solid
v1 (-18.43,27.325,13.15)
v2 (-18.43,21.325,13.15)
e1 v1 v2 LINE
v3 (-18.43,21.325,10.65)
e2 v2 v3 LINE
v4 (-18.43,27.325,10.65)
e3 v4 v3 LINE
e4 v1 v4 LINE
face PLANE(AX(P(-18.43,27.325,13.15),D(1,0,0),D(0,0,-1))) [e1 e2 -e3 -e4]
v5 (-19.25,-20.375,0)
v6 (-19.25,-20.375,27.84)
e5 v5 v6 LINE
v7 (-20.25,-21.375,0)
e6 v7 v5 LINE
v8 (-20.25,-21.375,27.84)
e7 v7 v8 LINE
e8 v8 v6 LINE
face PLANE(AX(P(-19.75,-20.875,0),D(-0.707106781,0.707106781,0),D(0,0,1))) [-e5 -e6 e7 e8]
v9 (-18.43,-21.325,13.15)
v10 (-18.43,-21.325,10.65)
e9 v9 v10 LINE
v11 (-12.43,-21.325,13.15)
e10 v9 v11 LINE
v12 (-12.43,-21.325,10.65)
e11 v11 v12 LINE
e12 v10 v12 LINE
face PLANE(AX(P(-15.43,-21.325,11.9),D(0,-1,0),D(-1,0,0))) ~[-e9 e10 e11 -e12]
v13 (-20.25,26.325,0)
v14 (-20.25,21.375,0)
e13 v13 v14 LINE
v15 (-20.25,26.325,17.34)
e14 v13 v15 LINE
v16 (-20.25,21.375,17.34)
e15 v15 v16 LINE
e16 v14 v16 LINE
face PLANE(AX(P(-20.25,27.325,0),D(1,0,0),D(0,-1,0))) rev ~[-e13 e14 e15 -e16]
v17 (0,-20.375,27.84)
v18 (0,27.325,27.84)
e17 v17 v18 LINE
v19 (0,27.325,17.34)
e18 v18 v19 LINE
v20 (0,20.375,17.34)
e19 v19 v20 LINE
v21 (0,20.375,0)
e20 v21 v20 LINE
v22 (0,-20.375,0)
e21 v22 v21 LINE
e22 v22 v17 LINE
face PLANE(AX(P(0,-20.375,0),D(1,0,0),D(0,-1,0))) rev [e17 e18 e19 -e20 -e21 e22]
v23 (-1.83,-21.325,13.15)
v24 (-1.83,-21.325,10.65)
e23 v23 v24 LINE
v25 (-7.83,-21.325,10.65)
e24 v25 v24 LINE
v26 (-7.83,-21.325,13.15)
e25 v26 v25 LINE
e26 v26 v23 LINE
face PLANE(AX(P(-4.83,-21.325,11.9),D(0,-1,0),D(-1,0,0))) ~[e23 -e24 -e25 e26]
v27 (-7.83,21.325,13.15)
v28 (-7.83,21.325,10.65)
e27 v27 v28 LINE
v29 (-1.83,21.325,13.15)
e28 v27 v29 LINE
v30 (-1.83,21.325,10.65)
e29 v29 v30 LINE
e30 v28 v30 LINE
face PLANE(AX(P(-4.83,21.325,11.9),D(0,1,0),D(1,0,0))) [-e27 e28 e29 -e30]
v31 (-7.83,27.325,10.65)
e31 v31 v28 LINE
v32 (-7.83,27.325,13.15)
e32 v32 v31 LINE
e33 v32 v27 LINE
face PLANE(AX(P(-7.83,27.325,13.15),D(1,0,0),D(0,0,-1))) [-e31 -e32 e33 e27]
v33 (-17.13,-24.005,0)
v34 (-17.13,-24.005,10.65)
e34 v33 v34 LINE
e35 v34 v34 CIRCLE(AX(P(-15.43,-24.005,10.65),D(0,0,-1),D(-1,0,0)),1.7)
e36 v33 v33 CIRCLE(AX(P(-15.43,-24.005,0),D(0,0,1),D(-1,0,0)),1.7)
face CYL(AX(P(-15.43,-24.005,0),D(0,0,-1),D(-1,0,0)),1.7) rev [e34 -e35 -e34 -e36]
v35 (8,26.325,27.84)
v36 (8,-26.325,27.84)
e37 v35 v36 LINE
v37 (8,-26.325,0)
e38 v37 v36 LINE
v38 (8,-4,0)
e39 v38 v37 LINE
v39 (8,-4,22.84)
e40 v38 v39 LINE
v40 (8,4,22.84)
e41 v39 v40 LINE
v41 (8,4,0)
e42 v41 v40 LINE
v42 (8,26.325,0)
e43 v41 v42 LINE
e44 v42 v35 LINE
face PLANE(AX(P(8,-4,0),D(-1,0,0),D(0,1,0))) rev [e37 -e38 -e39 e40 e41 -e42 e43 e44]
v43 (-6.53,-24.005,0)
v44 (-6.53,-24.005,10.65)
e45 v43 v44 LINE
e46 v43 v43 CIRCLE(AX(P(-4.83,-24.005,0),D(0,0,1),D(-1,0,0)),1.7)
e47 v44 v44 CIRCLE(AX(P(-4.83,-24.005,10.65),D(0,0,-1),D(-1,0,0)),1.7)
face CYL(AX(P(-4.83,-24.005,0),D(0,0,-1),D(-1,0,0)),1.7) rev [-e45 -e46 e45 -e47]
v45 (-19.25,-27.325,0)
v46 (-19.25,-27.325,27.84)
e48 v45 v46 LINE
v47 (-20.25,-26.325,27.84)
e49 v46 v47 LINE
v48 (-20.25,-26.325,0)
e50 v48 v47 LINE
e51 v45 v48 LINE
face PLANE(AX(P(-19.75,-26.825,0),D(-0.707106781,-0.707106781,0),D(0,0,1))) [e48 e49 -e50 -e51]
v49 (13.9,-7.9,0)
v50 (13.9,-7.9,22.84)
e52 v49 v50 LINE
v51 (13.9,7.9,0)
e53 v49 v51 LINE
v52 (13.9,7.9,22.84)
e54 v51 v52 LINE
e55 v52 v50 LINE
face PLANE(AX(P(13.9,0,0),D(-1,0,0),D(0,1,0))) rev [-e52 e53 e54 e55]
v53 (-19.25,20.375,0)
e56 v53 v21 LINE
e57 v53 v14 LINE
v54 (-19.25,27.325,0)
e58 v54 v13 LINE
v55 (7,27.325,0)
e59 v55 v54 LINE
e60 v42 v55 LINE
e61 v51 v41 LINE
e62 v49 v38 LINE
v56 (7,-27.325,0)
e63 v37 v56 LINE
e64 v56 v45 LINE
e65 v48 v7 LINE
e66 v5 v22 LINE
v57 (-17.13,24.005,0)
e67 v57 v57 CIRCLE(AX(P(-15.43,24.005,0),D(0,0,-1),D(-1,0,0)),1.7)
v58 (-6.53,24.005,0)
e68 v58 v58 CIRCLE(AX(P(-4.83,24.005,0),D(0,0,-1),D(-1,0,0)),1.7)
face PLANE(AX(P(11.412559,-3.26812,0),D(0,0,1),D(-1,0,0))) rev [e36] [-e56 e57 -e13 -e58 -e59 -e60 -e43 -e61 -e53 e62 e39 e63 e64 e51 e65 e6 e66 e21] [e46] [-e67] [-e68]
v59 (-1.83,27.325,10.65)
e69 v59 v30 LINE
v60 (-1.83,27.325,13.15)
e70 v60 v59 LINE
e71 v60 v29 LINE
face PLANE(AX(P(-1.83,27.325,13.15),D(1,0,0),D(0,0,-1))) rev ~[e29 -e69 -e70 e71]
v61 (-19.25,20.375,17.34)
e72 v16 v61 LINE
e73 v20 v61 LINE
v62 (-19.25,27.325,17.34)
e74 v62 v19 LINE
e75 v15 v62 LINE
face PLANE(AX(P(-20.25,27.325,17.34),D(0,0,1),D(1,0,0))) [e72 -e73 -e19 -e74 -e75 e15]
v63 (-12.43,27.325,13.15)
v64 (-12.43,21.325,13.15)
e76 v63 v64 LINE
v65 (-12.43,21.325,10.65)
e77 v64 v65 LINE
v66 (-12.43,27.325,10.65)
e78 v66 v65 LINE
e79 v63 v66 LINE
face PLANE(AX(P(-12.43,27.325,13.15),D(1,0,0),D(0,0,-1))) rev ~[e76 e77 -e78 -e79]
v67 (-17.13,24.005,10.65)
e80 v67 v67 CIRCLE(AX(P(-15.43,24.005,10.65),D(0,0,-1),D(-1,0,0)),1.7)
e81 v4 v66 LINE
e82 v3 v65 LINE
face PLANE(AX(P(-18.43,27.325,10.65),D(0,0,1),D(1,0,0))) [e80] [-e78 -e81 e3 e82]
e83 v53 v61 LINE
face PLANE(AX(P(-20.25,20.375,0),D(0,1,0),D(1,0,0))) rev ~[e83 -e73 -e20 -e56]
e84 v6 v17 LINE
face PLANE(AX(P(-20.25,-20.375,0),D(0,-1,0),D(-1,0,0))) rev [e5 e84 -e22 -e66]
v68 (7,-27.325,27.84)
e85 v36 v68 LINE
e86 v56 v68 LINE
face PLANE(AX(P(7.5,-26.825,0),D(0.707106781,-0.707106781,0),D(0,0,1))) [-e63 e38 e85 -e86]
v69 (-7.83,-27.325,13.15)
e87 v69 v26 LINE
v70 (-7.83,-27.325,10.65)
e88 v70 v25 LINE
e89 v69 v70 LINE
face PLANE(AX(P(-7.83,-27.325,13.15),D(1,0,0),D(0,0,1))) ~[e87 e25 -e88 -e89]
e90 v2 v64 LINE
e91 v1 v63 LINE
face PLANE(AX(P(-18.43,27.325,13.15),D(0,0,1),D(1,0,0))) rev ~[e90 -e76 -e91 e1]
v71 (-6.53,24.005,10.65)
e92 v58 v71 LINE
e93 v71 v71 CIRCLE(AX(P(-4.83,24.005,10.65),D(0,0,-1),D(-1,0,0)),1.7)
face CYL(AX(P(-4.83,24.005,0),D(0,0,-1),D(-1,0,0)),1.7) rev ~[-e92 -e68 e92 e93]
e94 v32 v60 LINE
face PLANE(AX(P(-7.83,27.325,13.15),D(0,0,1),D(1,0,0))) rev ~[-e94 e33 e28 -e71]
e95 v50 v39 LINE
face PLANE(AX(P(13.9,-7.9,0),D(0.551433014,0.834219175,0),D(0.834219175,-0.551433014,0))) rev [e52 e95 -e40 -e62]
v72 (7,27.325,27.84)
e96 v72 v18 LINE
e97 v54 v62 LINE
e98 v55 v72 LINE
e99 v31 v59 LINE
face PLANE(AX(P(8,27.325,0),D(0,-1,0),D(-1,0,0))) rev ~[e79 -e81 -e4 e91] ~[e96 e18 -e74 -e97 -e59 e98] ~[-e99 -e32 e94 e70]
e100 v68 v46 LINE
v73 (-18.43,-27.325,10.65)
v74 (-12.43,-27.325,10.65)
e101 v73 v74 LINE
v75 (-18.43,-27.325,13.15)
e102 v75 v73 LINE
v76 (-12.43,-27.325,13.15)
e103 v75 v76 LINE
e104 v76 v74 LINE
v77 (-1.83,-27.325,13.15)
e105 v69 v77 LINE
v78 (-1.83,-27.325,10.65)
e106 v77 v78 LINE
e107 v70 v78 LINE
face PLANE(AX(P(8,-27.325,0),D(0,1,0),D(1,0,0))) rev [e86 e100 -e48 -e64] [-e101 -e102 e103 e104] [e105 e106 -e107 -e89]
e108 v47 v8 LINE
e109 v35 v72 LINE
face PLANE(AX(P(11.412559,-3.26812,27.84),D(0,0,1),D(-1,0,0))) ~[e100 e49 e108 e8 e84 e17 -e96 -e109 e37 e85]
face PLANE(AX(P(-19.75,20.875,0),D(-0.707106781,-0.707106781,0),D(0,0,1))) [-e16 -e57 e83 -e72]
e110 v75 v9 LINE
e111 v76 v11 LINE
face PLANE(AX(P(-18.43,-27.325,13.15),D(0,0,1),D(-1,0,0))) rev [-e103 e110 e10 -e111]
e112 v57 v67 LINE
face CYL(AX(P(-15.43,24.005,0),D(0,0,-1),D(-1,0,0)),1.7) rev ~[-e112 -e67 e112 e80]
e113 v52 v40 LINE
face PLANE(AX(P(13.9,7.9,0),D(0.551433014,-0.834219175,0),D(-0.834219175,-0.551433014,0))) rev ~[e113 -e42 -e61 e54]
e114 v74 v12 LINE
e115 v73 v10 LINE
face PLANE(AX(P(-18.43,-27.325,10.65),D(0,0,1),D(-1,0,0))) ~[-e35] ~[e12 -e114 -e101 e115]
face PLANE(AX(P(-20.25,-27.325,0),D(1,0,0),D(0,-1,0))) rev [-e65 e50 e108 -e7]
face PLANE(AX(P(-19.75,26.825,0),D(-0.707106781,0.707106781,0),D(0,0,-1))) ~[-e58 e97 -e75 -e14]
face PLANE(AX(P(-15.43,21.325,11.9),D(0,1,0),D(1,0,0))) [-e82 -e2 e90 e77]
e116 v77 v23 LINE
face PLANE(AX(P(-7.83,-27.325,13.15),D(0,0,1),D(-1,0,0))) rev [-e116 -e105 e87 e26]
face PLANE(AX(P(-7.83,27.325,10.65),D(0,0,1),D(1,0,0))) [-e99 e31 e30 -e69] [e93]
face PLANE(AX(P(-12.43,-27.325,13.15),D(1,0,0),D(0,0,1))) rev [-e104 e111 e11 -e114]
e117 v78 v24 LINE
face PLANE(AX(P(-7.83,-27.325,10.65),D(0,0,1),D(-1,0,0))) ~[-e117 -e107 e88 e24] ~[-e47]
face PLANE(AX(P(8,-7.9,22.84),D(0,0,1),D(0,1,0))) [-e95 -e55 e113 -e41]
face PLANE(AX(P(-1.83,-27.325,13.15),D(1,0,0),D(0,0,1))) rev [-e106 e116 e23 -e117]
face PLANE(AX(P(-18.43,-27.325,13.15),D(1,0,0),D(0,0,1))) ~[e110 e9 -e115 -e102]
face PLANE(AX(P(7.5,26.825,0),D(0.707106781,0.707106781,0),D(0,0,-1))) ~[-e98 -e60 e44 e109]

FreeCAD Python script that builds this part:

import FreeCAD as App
import Part
import Sketcher
from FreeCAD import Vector


def edges_at(feature, points):
    """Names of the edges that pass closest to the given points."""
    edges = feature.Shape.Edges
    near = lambda p: min(range(len(edges)), key=lambda i: edges[i].distToShape(Part.Vertex(*p))[0])
    return sorted({f"Edge{near(p) + 1}" for p in points})


def add_polygon(sketch, points):
    """Adds a closed chain of lines whose ends are joined by coincident constraints."""
    first, n = sketch.GeometryCount, len(points)
    for a, b in zip(points, points[1:] + points[:1]):
        sketch.addGeometry(Part.LineSegment(App.Vector(*a, 0), App.Vector(*b, 0)), False)
    for i in range(n):
        sketch.addConstraint(Sketcher.Constraint("Coincident", first + i, 2, first + (i + 1) % n, 1))

doc = App.newDocument("Part")
params = doc.addObject("Spreadsheet::Sheet", "Params")
for row, (alias, value) in enumerate([
    ("sketch1_width", "13.9 mm"),
    ("sketch1_height", "7.9 mm"),
    ("sketch1_width2", "28.25 mm"),
    ("sketch1_height2", "6.95 mm"),
    ("pad1_length", "27.84 mm"),
    ("sketch2_diameter", "3.4 mm"),
    ("pocket1_length", "13.15 mm"),
    ("sketch3_width", "6 mm"),
    ("sketch3_height", "2.5 mm"),
    ("pocket2_length", "6 mm"),
    ("chamfer_size", "1 mm"),
    ("chamfer2_size", "1 mm"),
    ("sketch4_height", "5 mm"),
    ("sketch4_width", "15.8 mm"),
    ("sketch5_height", "10.5 mm"),
    ("sketch5_width", "20.25 mm"),
], start=1):
    params.set(f"A{row}", alias)
    params.set(f"B{row}", "=" + value)
    params.setAlias(f"B{row}", alias)

body = doc.addObject("PartDesign::Body", "Body")

# Sketch on XY plane
sketch1 = body.newObject("Sketcher::SketchObject", "Sketch")
sketch1.AttachmentSupport = (doc.getObject("XY_Plane"), [""])
sketch1.MapMode = "FlatFace"
add_polygon(sketch1, [(13.9, 0), (13.9, 7.9), (8, 4), (8, 27.325), (-20.25, 27.325), (-20.25, 20.375), (0, 20.375), (0, 0)])  # lines 0-7
sketch1.addConstraint(Sketcher.Constraint("Vertical", 0))
sketch1.addConstraint(Sketcher.Constraint("Vertical", 2))
sketch1.addConstraint(Sketcher.Constraint("Horizontal", 3))
sketch1.addConstraint(Sketcher.Constraint("Vertical", 4))
sketch1.addConstraint(Sketcher.Constraint("Horizontal", 5))
sketch1.addConstraint(Sketcher.Constraint("Vertical", 6))
sketch1.addConstraint(Sketcher.Constraint("Horizontal", 7))
sketch1.addConstraint(Sketcher.Constraint("Coincident", 6, 2, -1, 1))
sketch1.addConstraint(Sketcher.Constraint("DistanceX", 7, 1, 7, 2, 13.9))
sketch1.addConstraint(Sketcher.Constraint("DistanceY", 0, 1, 0, 2, 7.9))
sketch1.addConstraint(Sketcher.Constraint("DistanceX", -1, 1, 1, 2, 8.0))
sketch1.addConstraint(Sketcher.Constraint("DistanceY", -1, 1, 1, 2, 4.0))
sketch1.addConstraint(Sketcher.Constraint("DistanceX", 3, 2, 3, 1, 28.25))
sketch1.addConstraint(Sketcher.Constraint("DistanceY", 4, 2, 4, 1, 6.95))
sketch1.addConstraint(Sketcher.Constraint("DistanceY", 2, 1, 2, 2, 23.325))
sketch1.setExpression("Constraints[16]", "Params.sketch1_width")
sketch1.setExpression("Constraints[17]", "Params.sketch1_height")
sketch1.setExpression("Constraints[20]", "Params.sketch1_width2")
sketch1.setExpression("Constraints[21]", "Params.sketch1_height2")
pad1 = body.newObject("PartDesign::Pad", "Pad")
pad1.Profile = sketch1
pad1.setExpression("Length", "Params.pad1_length")

# Sketch on XY plane
sketch2 = body.newObject("Sketcher::SketchObject", "Sketch001")
sketch2.AttachmentSupport = (doc.getObject("XY_Plane"), [""])
sketch2.MapMode = "FlatFace"
sketch2.addGeometry(Part.Circle(Vector(-4.83, 24.005, 0), Vector(0, 0, 1), 1.7), False)
sketch2.addGeometry(Part.Circle(Vector(-15.43, 24.005, 0), Vector(0, 0, 1), 1.7), False)
sketch2.addConstraint(Sketcher.Constraint("Equal", 0, 1))
sketch2.addConstraint(Sketcher.Constraint("Horizontal", 0, 3, 1, 3))
sketch2.addConstraint(Sketcher.Constraint("Diameter", 0, 3.4))
sketch2.addConstraint(Sketcher.Constraint("DistanceX", 1, 3, 0, 3, 10.6))
sketch2.addConstraint(Sketcher.Constraint("DistanceX", 0, 3, -1, 1, 4.83))
sketch2.addConstraint(Sketcher.Constraint("DistanceY", -1, 1, 0, 3, 24.005))
sketch2.setExpression("Constraints[2]", "Params.sketch2_diameter")
pocket1 = body.newObject("PartDesign::Pocket", "Pocket")
pocket1.Profile = sketch2
pocket1.setExpression("Length", "Params.pocket1_length")
pocket1.Reversed = True

# Sketch on XZ plane
sketch3 = body.newObject("Sketcher::SketchObject", "Sketch002")
sketch3.AttachmentSupport = (doc.getObject("XZ_Plane"), [""])
sketch3.MapMode = "FlatFace"
sketch3.AttachmentOffset = App.Placement(Vector(0, 0, -27.325), App.Rotation())
add_polygon(sketch3, [(-7.83, 10.65), (-7.83, 13.15), (-1.83, 13.15), (-1.83, 10.65)])  # lines 0-3
add_polygon(sketch3, [(-18.43, 10.65), (-18.43, 13.15), (-12.43, 13.15), (-12.43, 10.65)])  # lines 4-7
sketch3.addConstraint(Sketcher.Constraint("Vertical", 0))
sketch3.addConstraint(Sketcher.Constraint("Horizontal", 1))
sketch3.addConstraint(Sketcher.Constraint("Vertical", 2))
sketch3.addConstraint(Sketcher.Constraint("Horizontal", 3))
sketch3.addConstraint(Sketcher.Constraint("Vertical", 4))
sketch3.addConstraint(Sketcher.Constraint("Horizontal", 5))
sketch3.addConstraint(Sketcher.Constraint("Vertical", 6))
sketch3.addConstraint(Sketcher.Constraint("Horizontal", 7))
sketch3.addConstraint(Sketcher.Constraint("Horizontal", 1, 2, 4, 2))
sketch3.addConstraint(Sketcher.Constraint("Horizontal", 3, 2, 6, 2))
sketch3.addConstraint(Sketcher.Constraint("Equal", 3, 5))
sketch3.addConstraint(Sketcher.Constraint("DistanceX", 1, 1, 1, 2, 6.0))
sketch3.addConstraint(Sketcher.Constraint("DistanceY", 0, 1, 0, 2, 2.5))
sketch3.addConstraint(Sketcher.Constraint("DistanceX", 4, 2, 0, 2, 10.6))
sketch3.addConstraint(Sketcher.Constraint("DistanceX", 0, 2, -1, 1, 7.83))
sketch3.addConstraint(Sketcher.Constraint("DistanceY", -1, 1, 0, 2, 13.15))
sketch3.setExpression("Constraints[19]", "Params.sketch3_width")
sketch3.setExpression("Constraints[20]", "Params.sketch3_height")
pocket2 = body.newObject("PartDesign::Pocket", "Pocket001")
pocket2.Profile = sketch3
pocket2.setExpression("Length", "Params.pocket2_length")
pocket2.Reversed = True
doc.recompute()

chamfer = body.newObject("PartDesign::Chamfer", "Chamfer")
chamfer.Base = (pocket2, edges_at(pocket2, [(-20.25, 20.375, 13.92), (-20.25, 27.325, 13.92), (8, 27.325, 13.92)]))
chamfer.setExpression("Size", "Params.chamfer_size")
doc.recompute()

mirrored = body.newObject("PartDesign::Mirrored", "Mirrored")
mirrored.Originals = [pad1, pocket1, pocket2]
mirrored.MirrorPlane = (doc.getObject("XZ_Plane"), [""])
body.Tip = mirrored
doc.recompute()

chamfer2 = body.newObject("PartDesign::Chamfer", "Chamfer001")
chamfer2.Base = (mirrored, edges_at(mirrored, [(-20.25, -20.375, 13.92), (-20.25, -27.325, 13.92), (8, -27.325, 13.92)]))
chamfer2.setExpression("Size", "Params.chamfer2_size")

# Sketch on YZ plane
sketch4 = body.newObject("Sketcher::SketchObject", "Sketch003")
sketch4.AttachmentSupport = (doc.getObject("YZ_Plane"), [""])
sketch4.MapMode = "FlatFace"
sketch4.AttachmentOffset = App.Placement(Vector(0, 0, 8), App.Rotation())
add_polygon(sketch4, [(7.9, 27.84), (-7.9, 27.84), (-7.9, 22.84), (7.9, 22.84)])  # lines 0-3
sketch4.addConstraint(Sketcher.Constraint("Horizontal", 0))
sketch4.addConstraint(Sketcher.Constraint("Vertical", 1))
sketch4.addConstraint(Sketcher.Constraint("Horizontal", 2))
sketch4.addConstraint(Sketcher.Constraint("Vertical", 3))
sketch4.addConstraint(Sketcher.Constraint("DistanceY", 1, 2, 1, 1, 5.0))
sketch4.addConstraint(Sketcher.Constraint("DistanceX", 0, 2, 0, 1, 15.8))
sketch4.addConstraint(Sketcher.Constraint("DistanceX", 0, 2, -1, 1, 7.9))
sketch4.addConstraint(Sketcher.Constraint("DistanceY", -1, 1, 0, 2, 27.84))
sketch4.setExpression("Constraints[8]", "Params.sketch4_height")
sketch4.setExpression("Constraints[9]", "Params.sketch4_width")
pocket3 = body.newObject("PartDesign::Pocket", "Pocket002")
pocket3.Profile = sketch4
pocket3.Type = "ThroughAll"
pocket3.Reversed = True

# Sketch on XZ plane
sketch5 = body.newObject("Sketcher::SketchObject", "Sketch004")
sketch5.AttachmentSupport = (doc.getObject("XZ_Plane"), [""])
sketch5.MapMode = "FlatFace"
sketch5.AttachmentOffset = App.Placement(Vector(0, 0, -27.325), App.Rotation())
add_polygon(sketch5, [(-20.25, 17.34), (-20.25, 27.84), (0, 27.84), (0, 17.34)])  # lines 0-3
sketch5.addConstraint(Sketcher.Constraint("Vertical", 0))
sketch5.addConstraint(Sketcher.Constraint("Horizontal", 1))
sketch5.addConstraint(Sketcher.Constraint("Vertical", 2))
sketch5.addConstraint(Sketcher.Constraint("Horizontal", 3))
sketch5.addConstraint(Sketcher.Constraint("PointOnObject", 1, 2, -2))
sketch5.addConstraint(Sketcher.Constraint("DistanceY", 0, 1, 0, 2, 10.5))
sketch5.addConstraint(Sketcher.Constraint("DistanceX", 1, 1, 1, 2, 20.25))
sketch5.addConstraint(Sketcher.Constraint("DistanceY", -1, 1, 0, 2, 27.84))
sketch5.setExpression("Constraints[9]", "Params.sketch5_height")
sketch5.setExpression("Constraints[10]", "Params.sketch5_width")
pocket4 = body.newObject("PartDesign::Pocket", "Pocket003")
pocket4.Profile = sketch5
pocket4.Type = "UpToFirst"
pocket4.Reversed = True

doc.recompute()
